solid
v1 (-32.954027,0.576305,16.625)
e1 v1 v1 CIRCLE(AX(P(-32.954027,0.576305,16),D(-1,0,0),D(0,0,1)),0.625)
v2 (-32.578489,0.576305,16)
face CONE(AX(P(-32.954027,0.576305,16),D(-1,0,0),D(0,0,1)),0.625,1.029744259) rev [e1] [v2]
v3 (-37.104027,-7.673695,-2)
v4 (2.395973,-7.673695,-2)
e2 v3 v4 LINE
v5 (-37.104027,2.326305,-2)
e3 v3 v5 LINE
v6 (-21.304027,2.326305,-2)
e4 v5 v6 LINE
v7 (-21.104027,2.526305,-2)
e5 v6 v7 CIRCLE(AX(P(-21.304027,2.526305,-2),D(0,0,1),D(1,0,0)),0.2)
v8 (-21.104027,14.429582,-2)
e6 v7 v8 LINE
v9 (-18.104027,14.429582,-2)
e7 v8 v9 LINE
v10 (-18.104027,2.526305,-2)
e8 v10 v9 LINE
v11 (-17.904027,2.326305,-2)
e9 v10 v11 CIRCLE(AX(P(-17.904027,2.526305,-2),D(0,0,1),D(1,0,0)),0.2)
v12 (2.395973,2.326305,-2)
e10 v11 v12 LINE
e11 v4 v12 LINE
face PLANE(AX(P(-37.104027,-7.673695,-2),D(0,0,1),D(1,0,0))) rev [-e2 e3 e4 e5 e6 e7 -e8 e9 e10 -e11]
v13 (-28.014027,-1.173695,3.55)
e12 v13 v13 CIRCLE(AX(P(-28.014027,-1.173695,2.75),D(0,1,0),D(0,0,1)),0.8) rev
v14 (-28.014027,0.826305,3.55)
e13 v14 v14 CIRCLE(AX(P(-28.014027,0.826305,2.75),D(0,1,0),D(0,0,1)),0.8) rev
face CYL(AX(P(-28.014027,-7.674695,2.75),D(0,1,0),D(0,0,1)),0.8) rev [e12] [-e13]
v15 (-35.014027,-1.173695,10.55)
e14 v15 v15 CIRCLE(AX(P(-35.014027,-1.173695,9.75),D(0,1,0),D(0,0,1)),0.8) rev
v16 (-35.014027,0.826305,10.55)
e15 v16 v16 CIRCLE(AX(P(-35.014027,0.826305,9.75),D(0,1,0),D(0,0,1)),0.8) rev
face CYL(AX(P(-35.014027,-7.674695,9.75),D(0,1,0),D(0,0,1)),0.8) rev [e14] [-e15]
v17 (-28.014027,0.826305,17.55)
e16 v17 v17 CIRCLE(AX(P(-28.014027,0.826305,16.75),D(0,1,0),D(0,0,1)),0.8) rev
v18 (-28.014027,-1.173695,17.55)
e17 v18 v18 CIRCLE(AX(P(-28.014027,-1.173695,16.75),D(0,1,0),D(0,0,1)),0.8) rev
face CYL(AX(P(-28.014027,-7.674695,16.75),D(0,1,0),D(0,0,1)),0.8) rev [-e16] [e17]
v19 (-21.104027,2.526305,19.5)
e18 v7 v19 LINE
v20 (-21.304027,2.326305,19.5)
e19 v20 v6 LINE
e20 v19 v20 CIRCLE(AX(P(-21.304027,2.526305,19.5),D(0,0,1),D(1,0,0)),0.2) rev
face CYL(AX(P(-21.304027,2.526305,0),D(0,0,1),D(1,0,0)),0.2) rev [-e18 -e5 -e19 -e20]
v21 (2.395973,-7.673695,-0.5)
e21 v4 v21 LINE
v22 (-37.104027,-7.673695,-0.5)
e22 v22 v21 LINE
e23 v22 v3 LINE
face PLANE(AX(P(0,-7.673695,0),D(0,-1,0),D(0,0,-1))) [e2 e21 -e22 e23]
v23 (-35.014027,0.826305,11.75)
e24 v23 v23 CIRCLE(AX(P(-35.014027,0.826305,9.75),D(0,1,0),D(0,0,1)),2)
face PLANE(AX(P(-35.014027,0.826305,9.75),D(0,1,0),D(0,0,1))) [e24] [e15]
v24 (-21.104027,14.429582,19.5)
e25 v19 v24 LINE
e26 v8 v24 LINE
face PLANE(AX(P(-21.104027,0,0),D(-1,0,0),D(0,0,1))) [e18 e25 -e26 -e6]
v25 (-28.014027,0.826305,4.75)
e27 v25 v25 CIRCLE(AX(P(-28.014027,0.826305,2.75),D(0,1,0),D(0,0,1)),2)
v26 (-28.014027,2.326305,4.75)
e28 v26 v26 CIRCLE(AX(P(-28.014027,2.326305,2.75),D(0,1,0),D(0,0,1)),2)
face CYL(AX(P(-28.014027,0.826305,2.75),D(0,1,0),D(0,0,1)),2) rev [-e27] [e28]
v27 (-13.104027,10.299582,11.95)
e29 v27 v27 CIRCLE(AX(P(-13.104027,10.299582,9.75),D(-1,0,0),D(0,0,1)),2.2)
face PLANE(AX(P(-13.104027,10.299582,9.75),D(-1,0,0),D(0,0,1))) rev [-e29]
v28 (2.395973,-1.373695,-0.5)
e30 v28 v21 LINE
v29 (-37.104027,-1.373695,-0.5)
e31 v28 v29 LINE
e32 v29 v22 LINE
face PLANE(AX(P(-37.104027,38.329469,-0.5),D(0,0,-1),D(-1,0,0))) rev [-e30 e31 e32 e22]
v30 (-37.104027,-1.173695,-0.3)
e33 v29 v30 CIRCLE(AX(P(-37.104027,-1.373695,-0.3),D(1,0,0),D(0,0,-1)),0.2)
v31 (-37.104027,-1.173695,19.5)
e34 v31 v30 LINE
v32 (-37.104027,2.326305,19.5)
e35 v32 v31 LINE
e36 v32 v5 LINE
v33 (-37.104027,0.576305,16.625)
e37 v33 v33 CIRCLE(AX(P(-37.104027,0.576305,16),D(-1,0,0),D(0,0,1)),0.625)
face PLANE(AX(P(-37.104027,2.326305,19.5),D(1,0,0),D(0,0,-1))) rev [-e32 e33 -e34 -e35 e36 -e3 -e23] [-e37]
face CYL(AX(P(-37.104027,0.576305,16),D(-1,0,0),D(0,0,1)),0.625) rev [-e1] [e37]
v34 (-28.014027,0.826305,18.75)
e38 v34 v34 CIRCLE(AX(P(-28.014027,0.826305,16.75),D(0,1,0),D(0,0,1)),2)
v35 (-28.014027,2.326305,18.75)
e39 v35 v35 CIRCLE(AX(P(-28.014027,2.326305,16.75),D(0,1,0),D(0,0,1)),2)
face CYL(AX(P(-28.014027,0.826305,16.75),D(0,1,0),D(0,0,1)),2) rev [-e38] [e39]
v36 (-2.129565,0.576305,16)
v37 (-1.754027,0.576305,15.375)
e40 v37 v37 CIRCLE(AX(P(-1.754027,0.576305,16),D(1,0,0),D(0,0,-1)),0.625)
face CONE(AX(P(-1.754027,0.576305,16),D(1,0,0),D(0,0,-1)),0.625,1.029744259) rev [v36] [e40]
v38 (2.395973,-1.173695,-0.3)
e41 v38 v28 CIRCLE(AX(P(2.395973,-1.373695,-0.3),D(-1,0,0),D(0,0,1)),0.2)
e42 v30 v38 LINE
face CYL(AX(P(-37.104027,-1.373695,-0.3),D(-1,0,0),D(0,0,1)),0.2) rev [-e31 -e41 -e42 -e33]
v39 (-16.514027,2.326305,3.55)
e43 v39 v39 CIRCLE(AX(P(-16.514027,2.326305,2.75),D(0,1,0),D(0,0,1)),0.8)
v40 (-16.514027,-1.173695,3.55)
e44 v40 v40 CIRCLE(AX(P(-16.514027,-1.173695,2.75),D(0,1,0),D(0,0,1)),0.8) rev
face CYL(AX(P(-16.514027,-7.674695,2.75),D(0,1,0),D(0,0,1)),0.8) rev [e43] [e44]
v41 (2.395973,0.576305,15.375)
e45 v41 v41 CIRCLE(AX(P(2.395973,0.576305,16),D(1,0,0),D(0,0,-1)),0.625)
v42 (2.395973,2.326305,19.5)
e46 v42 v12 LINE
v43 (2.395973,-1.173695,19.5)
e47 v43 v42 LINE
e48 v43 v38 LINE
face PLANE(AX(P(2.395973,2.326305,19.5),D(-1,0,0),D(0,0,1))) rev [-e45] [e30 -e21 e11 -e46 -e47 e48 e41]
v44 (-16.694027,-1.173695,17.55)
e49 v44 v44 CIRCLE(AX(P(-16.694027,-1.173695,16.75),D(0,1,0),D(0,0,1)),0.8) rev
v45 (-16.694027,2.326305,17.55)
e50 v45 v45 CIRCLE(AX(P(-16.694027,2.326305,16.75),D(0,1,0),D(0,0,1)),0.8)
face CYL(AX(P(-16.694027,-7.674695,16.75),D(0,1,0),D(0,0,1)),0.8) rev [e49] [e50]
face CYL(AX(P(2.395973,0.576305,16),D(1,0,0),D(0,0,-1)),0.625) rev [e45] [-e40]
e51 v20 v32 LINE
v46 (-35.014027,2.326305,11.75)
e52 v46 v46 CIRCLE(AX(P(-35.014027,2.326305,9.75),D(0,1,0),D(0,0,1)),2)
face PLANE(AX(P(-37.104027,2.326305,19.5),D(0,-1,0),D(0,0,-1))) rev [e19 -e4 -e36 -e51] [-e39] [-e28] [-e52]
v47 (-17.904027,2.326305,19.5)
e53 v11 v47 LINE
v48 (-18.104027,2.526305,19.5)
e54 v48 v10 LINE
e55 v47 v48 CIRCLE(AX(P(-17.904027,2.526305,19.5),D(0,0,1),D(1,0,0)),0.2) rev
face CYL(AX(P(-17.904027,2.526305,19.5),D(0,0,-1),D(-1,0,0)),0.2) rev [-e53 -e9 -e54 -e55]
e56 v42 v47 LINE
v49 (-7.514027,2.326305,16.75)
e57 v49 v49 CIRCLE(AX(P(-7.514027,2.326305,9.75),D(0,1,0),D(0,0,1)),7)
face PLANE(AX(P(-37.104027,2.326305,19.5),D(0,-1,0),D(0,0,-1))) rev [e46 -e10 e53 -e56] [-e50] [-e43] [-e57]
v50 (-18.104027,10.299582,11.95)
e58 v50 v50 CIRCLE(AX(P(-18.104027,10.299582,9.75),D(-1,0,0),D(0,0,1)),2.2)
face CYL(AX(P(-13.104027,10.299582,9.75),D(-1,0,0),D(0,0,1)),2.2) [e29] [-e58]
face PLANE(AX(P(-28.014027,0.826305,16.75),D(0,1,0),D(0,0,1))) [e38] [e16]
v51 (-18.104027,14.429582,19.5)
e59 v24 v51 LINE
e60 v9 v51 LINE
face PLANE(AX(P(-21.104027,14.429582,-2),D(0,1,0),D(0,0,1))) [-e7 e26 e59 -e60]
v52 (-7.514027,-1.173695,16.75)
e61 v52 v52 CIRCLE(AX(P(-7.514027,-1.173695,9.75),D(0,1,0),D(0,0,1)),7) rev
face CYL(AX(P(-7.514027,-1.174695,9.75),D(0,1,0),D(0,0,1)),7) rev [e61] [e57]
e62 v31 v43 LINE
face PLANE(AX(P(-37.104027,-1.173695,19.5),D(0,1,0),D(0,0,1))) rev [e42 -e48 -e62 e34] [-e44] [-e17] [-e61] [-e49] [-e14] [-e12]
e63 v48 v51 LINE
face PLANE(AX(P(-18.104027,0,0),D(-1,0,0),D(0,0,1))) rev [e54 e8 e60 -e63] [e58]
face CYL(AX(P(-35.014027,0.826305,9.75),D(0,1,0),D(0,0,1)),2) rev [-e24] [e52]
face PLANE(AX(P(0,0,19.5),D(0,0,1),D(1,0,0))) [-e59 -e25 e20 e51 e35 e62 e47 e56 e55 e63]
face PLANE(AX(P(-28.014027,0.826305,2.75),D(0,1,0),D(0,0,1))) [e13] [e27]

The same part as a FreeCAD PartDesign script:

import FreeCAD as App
import Part
import Sketcher
Q = App.Units.Quantity


def edges_at(feature, points):
    """Names of the edges that pass closest to the given points."""
    edges = feature.Shape.Edges
    near = lambda p: min(range(len(edges)), key=lambda i: edges[i].distToShape(Part.Vertex(*p))[0])
    return sorted({f"Edge{near(p) + 1}" for p in points})


def add_polygon(sketch, points):
    """Adds a closed chain of lines whose ends are joined by coincident constraints."""
    first, n = sketch.GeometryCount, len(points)
    for a, b in zip(points, points[1:] + points[:1]):
        sketch.addGeometry(Part.LineSegment(App.Vector(*a, 0), App.Vector(*b, 0)), False)
    for i in range(n):
        sketch.addConstraint(Sketcher.Constraint("Coincident", first + i, 2, first + (i + 1) % n, 1))

doc = App.newDocument("Part")
body = doc.addObject("PartDesign::Body", "Body")

# Sketch on XY plane
sketch1 = body.newObject("Sketcher::SketchObject", "Sketch")
sketch1.AttachmentSupport = (doc.getObject("XY_Plane"), [""])
sketch1.MapMode = "FlatFace"
add_polygon(sketch1, [(-37.104027, 2.326305), (-37.104027, -1.173695), (2.395973, -1.173695), (2.395973, 2.326305)])  # lines 0-3
sketch1.addConstraint([
    Sketcher.Constraint("Vertical", 0),
    Sketcher.Constraint("Horizontal", 1),
    Sketcher.Constraint("Vertical", 2),
    Sketcher.Constraint("Horizontal", 3),
    Sketcher.Constraint("DistanceX", 1, 1, 1, 2, Q("39.5 mm")),
    Sketcher.Constraint("DistanceY", 0, 2, 0, 1, Q("3.5 mm")),
    Sketcher.Constraint("DistanceX", 0, 2, -1, 1, Q("37.104027 mm")),
    Sketcher.Constraint("DistanceY", 0, 2, -1, 1, Q("1.173695 mm")),
])
pad1 = body.newObject("PartDesign::Pad", "Pad")
pad1.Profile = sketch1
pad1.Length = 19.5

# Sketch on XZ plane
sketch2 = body.newObject("Sketcher::SketchObject", "Sketch001")
sketch2.AttachmentSupport = (doc.getObject("XZ_Plane"), [""])
sketch2.MapMode = "FlatFace"
sketch2.AttachmentOffset = App.Placement(App.Vector(0, 0, -2.326305), App.Rotation())
sketch2.addGeometry(Part.Circle(App.Vector(-7.514027, 9.75, 0), App.Vector(0, 0, 1), 7), False)
sketch2.addConstraint([
    Sketcher.Constraint("Diameter", 0, Q("14 mm")),
    Sketcher.Constraint("DistanceY", -1, 1, 0, 3, Q("9.75 mm")),
    Sketcher.Constraint("DistanceX", 0, 3, -1, 1, Q("7.514027 mm")),
])
pocket1 = body.newObject("PartDesign::Pocket", "Pocket")
pocket1.Profile = sketch2
pocket1.Type = "UpToFirst"
pocket1.Reversed = True

# Sketch on XZ plane
sketch3 = body.newObject("Sketcher::SketchObject", "Sketch002")
sketch3.AttachmentSupport = (doc.getObject("XZ_Plane"), [""])
sketch3.MapMode = "FlatFace"
sketch3.AttachmentOffset = App.Placement(App.Vector(0, 0, -2.326305), App.Rotation())
add_polygon(sketch3, [(-37.104027, 0), (-37.104027, -2), (2.395973, -2), (2.395973, 0)])  # lines 0-3
sketch3.addConstraint([
    Sketcher.Constraint("Vertical", 0),
    Sketcher.Constraint("Horizontal", 1),
    Sketcher.Constraint("Vertical", 2),
    Sketcher.Constraint("Horizontal", 3),
    Sketcher.Constraint("PointOnObject", 2, 2, -1),
    Sketcher.Constraint("DistanceY", 0, 2, 0, 1, Q("2 mm")),
    Sketcher.Constraint("DistanceX", 1, 1, 1, 2, Q("39.5 mm")),
    Sketcher.Constraint("DistanceX", 0, 2, -1, 1, Q("37.104027 mm")),
])
pad2 = body.newObject("PartDesign::Pad", "Pad001")
pad2.Profile = sketch3
pad2.Length = 10

# Sketch on XZ plane
sketch4 = body.newObject("Sketcher::SketchObject", "Sketch003")
sketch4.AttachmentSupport = (doc.getObject("XZ_Plane"), [""])
sketch4.MapMode = "FlatFace"
sketch4.AttachmentOffset = App.Placement(App.Vector(0, 0, -2.326305), App.Rotation())
sketch4.addGeometry(Part.Circle(App.Vector(-35.014027, 9.75, 0), App.Vector(0, 0, 1), 0.8), False)
sketch4.addConstraint([
    Sketcher.Constraint("Diameter", 0, Q("1.6 mm")),
    Sketcher.Constraint("DistanceY", -1, 1, 0, 3, Q("9.75 mm")),
    Sketcher.Constraint("DistanceX", 0, 3, -1, 1, Q("35.014027 mm")),
])
pocket2 = body.newObject("PartDesign::Pocket", "Pocket001")
pocket2.Profile = sketch4
pocket2.Type = "UpToFirst"
pocket2.Reversed = True

# Sketch on XZ plane
sketch5 = body.newObject("Sketcher::SketchObject", "Sketch004")
sketch5.AttachmentSupport = (doc.getObject("XZ_Plane"), [""])
sketch5.MapMode = "FlatFace"
sketch5.AttachmentOffset = App.Placement(App.Vector(0, 0, -2.326305), App.Rotation())
sketch5.addGeometry(Part.Circle(App.Vector(-28.014027, 2.75, 0), App.Vector(0, 0, 1), 0.8), False)
sketch5.addConstraint([
    Sketcher.Constraint("Diameter", 0, Q("1.6 mm")),
    Sketcher.Constraint("DistanceY", -1, 1, 0, 3, Q("2.75 mm")),
    Sketcher.Constraint("DistanceX", 0, 3, -1, 1, Q("28.014027 mm")),
])
pocket3 = body.newObject("PartDesign::Pocket", "Pocket002")
pocket3.Profile = sketch5
pocket3.Type = "UpToFirst"
pocket3.Reversed = True

# Sketch on XZ plane
sketch6 = body.newObject("Sketcher::SketchObject", "Sketch005")
sketch6.AttachmentSupport = (doc.getObject("XZ_Plane"), [""])
sketch6.MapMode = "FlatFace"
sketch6.AttachmentOffset = App.Placement(App.Vector(0, 0, -2.326305), App.Rotation())
sketch6.addGeometry(Part.Circle(App.Vector(-28.014027, 16.75, 0), App.Vector(0, 0, 1), 0.8), False)
sketch6.addConstraint([
    Sketcher.Constraint("Diameter", 0, Q("1.6 mm")),
    Sketcher.Constraint("DistanceY", -1, 1, 0, 3, Q("16.75 mm")),
    Sketcher.Constraint("DistanceX", 0, 3, -1, 1, Q("28.014027 mm")),
])
pocket4 = body.newObject("PartDesign::Pocket", "Pocket003")
pocket4.Profile = sketch6
pocket4.Type = "UpToFirst"
pocket4.Reversed = True

# Sketch on XZ plane
sketch7 = body.newObject("Sketcher::SketchObject", "Sketch006")
sketch7.AttachmentSupport = (doc.getObject("XZ_Plane"), [""])
sketch7.MapMode = "FlatFace"
sketch7.AttachmentOffset = App.Placement(App.Vector(0, 0, -2.326305), App.Rotation())
sketch7.addGeometry(Part.Circle(App.Vector(-16.514027, 2.75, 0), App.Vector(0, 0, 1), 0.8), False)
sketch7.addConstraint([
    Sketcher.Constraint("Diameter", 0, Q("1.6 mm")),
    Sketcher.Constraint("DistanceY", -1, 1, 0, 3, Q("2.75 mm")),
    Sketcher.Constraint("DistanceX", 0, 3, -1, 1, Q("16.514027 mm")),
])
pocket5 = body.newObject("PartDesign::Pocket", "Pocket004")
pocket5.Profile = sketch7
pocket5.Type = "UpToFirst"
pocket5.Reversed = True

# Sketch on XZ plane
sketch8 = body.newObject("Sketcher::SketchObject", "Sketch007")
sketch8.AttachmentSupport = (doc.getObject("XZ_Plane"), [""])
sketch8.MapMode = "FlatFace"
sketch8.AttachmentOffset = App.Placement(App.Vector(0, 0, -2.326305), App.Rotation())
sketch8.addGeometry(Part.Circle(App.Vector(-16.694027, 16.75, 0), App.Vector(0, 0, 1), 0.8), False)
sketch8.addConstraint([
    Sketcher.Constraint("Diameter", 0, Q("1.6 mm")),
    Sketcher.Constraint("DistanceY", -1, 1, 0, 3, Q("16.75 mm")),
    Sketcher.Constraint("DistanceX", 0, 3, -1, 1, Q("16.694027 mm")),
])
pocket6 = body.newObject("PartDesign::Pocket", "Pocket005")
pocket6.Profile = sketch8
pocket6.Type = "UpToFirst"
pocket6.Reversed = True

# Sketch on YZ plane
sketch9 = body.newObject("Sketcher::SketchObject", "Sketch008")
sketch9.AttachmentSupport = (doc.getObject("YZ_Plane"), [""])
sketch9.MapMode = "FlatFace"
sketch9.AttachmentOffset = App.Placement(App.Vector(0, 0, -37.104027), App.Rotation())
sketch9.addGeometry(Part.Circle(App.Vector(0.576305, 16, 0), App.Vector(0, 0, 1), 0.625), False)
sketch9.addConstraint([
    Sketcher.Constraint("Diameter", 0, Q("1.25 mm")),
    Sketcher.Constraint("DistanceY", -1, 1, 0, 3, Q("16 mm")),
    Sketcher.Constraint("DistanceX", -1, 1, 0, 3, Q("0.576305 mm")),
])
doc.recompute()
hole = body.newObject("PartDesign::Hole", "Hole")
hole.Profile = sketch9
hole.ThreadType = "None"
hole.Diameter = 1.25
hole.DepthType = "Dimension"
hole.Depth = 4.15
hole.DrillPoint = "Angled"
hole.DrillPointAngle = 118
hole.Reversed = True

# Sketch on YZ plane
sketch10 = body.newObject("Sketcher::SketchObject", "Sketch009")
sketch10.AttachmentSupport = (doc.getObject("YZ_Plane"), [""])
sketch10.MapMode = "FlatFace"
sketch10.AttachmentOffset = App.Placement(App.Vector(0, 0, 2.395973), App.Rotation())
sketch10.addGeometry(Part.Circle(App.Vector(0.576305, 16, 0), App.Vector(0, 0, 1), 0.625), False)
sketch10.addConstraint([
    Sketcher.Constraint("Diameter", 0, Q("1.25 mm")),
    Sketcher.Constraint("DistanceY", -1, 1, 0, 3, Q("16 mm")),
    Sketcher.Constraint("DistanceX", -1, 1, 0, 3, Q("0.576305 mm")),
])
doc.recompute()
hole2 = body.newObject("PartDesign::Hole", "Hole001")
hole2.Profile = sketch10
hole2.ThreadType = "None"
hole2.Diameter = 1.25
hole2.DepthType = "Dimension"
hole2.Depth = 4.15
hole2.DrillPoint = "Angled"
hole2.DrillPointAngle = 118

# Sketch on YZ plane
sketch11 = body.newObject("Sketcher::SketchObject", "Sketch010")
sketch11.AttachmentSupport = (doc.getObject("YZ_Plane"), [""])
sketch11.MapMode = "FlatFace"
sketch11.AttachmentOffset = App.Placement(App.Vector(0, 0, -18.104027), App.Rotation())
add_polygon(sketch11, [(14.429582, -2), (2.326305, -2), (2.326305, 19.5), (14.429582, 19.5)])  # lines 0-3
sketch11.addConstraint([
    Sketcher.Constraint("Horizontal", 0),
    Sketcher.Constraint("Vertical", 1),
    Sketcher.Constraint("Horizontal", 2),
    Sketcher.Constraint("Vertical", 3),
    Sketcher.Constraint("DistanceY", 1, 1, 1, 2, Q("21.5 mm")),
    Sketcher.Constraint("DistanceY", 0, 2, -1, 1, Q("2 mm")),
    Sketcher.Constraint("DistanceX", 0, 2, 0, 1, Q("12.103277 mm")),
    Sketcher.Constraint("DistanceX", -1, 1, 2, 2, Q("14.429582 mm")),
])
pad3 = body.newObject("PartDesign::Pad", "Pad002")
pad3.Profile = sketch11
pad3.Length = 3
pad3.Reversed = True

# Sketch on YZ plane
sketch12 = body.newObject("Sketcher::SketchObject", "Sketch011")
sketch12.AttachmentSupport = (doc.getObject("YZ_Plane"), [""])
sketch12.MapMode = "FlatFace"
sketch12.AttachmentOffset = App.Placement(App.Vector(0, 0, -18.104027), App.Rotation())
sketch12.addGeometry(Part.Circle(App.Vector(10.299582, 9.75, 0), App.Vector(0, 0, 1), 2.2), False)
sketch12.addConstraint([
    Sketcher.Constraint("Diameter", 0, Q("4.4 mm")),
    Sketcher.Constraint("DistanceY", -1, 1, 0, 3, Q("9.75 mm")),
    Sketcher.Constraint("DistanceX", -1, 1, 0, 3, Q("10.299582 mm")),
])
pad4 = body.newObject("PartDesign::Pad", "Pad003")
pad4.Profile = sketch12
pad4.Length = 5

# Sketch on XZ plane
sketch13 = body.newObject("Sketcher::SketchObject", "Sketch012")
sketch13.AttachmentSupport = (doc.getObject("XZ_Plane"), [""])
sketch13.MapMode = "FlatFace"
sketch13.AttachmentOffset = App.Placement(App.Vector(0, 0, 7.673695), App.Rotation())
add_polygon(sketch13, [(-37.104027, 0), (-37.104027, -0.5), (2.395973, -0.5), (2.395973, 0)])  # lines 0-3
sketch13.addConstraint([
    Sketcher.Constraint("Vertical", 0),
    Sketcher.Constraint("Horizontal", 1),
    Sketcher.Constraint("Vertical", 2),
    Sketcher.Constraint("Horizontal", 3),
    Sketcher.Constraint("PointOnObject", 2, 2, -1),
    Sketcher.Constraint("DistanceX", 1, 1, 1, 2, Q("39.5 mm")),
    Sketcher.Constraint("DistanceY", 0, 2, 0, 1, Q("0.5 mm")),
    Sketcher.Constraint("DistanceX", 0, 2, -1, 1, Q("37.104027 mm")),
])
pocket7 = body.newObject("PartDesign::Pocket", "Pocket006")
pocket7.Profile = sketch13
pocket7.Length = 6.5
doc.recompute()

fillet = body.newObject("PartDesign::Fillet", "Fillet")
fillet.Base = (pocket7, edges_at(pocket7, [(-17.354, -1.174, -0.5)]))
fillet.Radius = 0.2
doc.recompute()

fillet2 = body.newObject("PartDesign::Fillet", "Fillet001")
fillet2.Base = (fillet, edges_at(fillet, [(-18.104, 2.326, 8.75), (-21.104, 2.326, 8.75)]))
fillet2.Radius = 0.2

# Sketch on XZ plane
sketch14 = body.newObject("Sketcher::SketchObject", "Sketch013")
sketch14.AttachmentSupport = (doc.getObject("XZ_Plane"), [""])
sketch14.MapMode = "FlatFace"
sketch14.AttachmentOffset = App.Placement(App.Vector(0, 0, -2.326305), App.Rotation())
sketch14.addGeometry([
    Part.Circle(App.Vector(-28.014027, 2.75, 0), App.Vector(0, 0, 1), 2),
    Part.Circle(App.Vector(-28.014027, 16.75, 0), App.Vector(0, 0, 1), 2),
    Part.Circle(App.Vector(-35.014027, 9.75, 0), App.Vector(0, 0, 1), 2),
], False)
sketch14.addConstraint([
    Sketcher.Constraint("Equal", 0, 1),
    Sketcher.Constraint("Equal", 1, 2),
    Sketcher.Constraint("Vertical", 0, 3, 1, 3),
    Sketcher.Constraint("Diameter", 0, Q("4 mm")),
    Sketcher.Constraint("DistanceY", 0, 3, 1, 3, Q("14 mm")),
    Sketcher.Constraint("DistanceX", 2, 3, 0, 3, Q("7 mm")),
    Sketcher.Constraint("DistanceY", 0, 3, 2, 3, Q("7 mm")),
    Sketcher.Constraint("DistanceY", -1, 1, 0, 3, Q("2.75 mm")),
    Sketcher.Constraint("DistanceX", 0, 3, -1, 1, Q("28.014027 mm")),
])
pocket8 = body.newObject("PartDesign::Pocket", "Pocket007")
pocket8.Profile = sketch14
pocket8.Length = 1.5
pocket8.Reversed = True

doc.recompute()
